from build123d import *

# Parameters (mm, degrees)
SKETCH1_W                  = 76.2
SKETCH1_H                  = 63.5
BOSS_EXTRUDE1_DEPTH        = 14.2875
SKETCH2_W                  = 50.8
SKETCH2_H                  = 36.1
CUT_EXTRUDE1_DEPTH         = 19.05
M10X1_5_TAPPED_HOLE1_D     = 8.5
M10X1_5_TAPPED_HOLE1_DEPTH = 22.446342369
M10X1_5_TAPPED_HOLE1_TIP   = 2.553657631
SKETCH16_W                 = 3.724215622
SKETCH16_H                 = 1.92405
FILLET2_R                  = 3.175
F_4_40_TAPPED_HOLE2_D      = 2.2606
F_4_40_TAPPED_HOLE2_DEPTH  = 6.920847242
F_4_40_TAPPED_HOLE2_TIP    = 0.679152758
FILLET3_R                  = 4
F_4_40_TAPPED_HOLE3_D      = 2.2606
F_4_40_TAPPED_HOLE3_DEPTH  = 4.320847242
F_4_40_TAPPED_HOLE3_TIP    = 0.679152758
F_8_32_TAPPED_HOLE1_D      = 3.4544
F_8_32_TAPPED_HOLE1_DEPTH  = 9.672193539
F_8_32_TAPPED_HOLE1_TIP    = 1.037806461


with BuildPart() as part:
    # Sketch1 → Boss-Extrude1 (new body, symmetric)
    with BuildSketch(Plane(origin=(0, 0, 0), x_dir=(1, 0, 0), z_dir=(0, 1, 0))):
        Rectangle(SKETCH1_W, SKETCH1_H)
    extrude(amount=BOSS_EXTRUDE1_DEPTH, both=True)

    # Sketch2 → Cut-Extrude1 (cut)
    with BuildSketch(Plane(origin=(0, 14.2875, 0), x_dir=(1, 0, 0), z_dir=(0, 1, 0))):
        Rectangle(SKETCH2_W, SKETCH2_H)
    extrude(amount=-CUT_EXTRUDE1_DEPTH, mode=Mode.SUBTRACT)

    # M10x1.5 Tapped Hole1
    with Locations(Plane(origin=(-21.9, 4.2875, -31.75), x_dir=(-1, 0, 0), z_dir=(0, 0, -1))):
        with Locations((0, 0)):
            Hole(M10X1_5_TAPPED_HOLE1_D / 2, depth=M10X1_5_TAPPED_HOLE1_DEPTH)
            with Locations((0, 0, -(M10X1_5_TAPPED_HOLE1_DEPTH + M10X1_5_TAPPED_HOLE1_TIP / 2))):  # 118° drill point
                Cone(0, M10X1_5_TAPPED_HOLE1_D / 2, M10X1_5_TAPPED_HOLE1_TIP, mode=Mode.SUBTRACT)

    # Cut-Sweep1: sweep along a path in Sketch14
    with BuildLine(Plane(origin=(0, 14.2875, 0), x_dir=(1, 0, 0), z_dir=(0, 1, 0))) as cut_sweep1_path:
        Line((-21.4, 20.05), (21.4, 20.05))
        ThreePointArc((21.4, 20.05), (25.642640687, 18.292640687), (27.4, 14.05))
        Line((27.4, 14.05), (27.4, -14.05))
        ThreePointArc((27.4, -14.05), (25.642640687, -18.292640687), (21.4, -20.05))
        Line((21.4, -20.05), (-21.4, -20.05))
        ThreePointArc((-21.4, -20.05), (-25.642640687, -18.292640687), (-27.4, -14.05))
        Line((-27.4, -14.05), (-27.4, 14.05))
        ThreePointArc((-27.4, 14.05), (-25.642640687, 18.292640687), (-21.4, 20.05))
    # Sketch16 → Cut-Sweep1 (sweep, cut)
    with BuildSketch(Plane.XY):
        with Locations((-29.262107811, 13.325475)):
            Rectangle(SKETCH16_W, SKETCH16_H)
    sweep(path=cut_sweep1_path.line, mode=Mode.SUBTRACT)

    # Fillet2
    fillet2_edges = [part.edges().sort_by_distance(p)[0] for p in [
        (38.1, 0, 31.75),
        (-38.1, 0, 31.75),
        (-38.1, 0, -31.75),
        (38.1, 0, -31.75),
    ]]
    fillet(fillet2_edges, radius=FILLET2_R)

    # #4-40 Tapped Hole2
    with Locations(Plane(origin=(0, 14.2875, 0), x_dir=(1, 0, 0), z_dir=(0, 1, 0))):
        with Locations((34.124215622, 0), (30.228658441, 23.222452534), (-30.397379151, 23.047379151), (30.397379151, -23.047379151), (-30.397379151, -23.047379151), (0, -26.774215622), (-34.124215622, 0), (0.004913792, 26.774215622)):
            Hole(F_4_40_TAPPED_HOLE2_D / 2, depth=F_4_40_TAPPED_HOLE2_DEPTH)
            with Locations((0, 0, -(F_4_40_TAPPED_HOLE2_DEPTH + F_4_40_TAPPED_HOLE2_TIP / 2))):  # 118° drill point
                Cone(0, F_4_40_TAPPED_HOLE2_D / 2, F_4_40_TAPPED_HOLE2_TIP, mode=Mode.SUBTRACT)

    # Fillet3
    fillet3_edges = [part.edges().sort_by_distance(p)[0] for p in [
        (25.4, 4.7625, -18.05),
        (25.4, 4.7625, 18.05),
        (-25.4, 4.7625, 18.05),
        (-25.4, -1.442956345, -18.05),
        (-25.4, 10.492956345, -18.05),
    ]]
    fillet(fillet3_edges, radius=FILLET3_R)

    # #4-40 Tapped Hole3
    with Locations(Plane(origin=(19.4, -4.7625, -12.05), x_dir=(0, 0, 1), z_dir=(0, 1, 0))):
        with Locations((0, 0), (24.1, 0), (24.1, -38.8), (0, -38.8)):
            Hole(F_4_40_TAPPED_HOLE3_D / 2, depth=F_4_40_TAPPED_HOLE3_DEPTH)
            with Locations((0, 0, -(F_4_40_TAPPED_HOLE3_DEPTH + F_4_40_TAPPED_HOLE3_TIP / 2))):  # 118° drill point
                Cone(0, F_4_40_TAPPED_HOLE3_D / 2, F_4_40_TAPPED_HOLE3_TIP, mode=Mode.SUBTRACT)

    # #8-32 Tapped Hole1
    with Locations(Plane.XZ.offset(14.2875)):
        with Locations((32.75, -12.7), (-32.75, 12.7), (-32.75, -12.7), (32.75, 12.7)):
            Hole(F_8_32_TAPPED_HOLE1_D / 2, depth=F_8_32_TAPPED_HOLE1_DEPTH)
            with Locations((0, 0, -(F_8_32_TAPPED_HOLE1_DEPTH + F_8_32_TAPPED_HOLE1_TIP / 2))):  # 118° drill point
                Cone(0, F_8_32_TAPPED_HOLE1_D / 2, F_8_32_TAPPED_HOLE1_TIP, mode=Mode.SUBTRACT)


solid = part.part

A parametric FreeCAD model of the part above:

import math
import FreeCAD as App
import Part
import Sketcher
from FreeCAD import Vector
Q = App.Units.Quantity


def edges_at(feature, points):
    """Names of the edges that pass closest to the given points."""
    edges = feature.Shape.Edges
    near = lambda p: min(range(len(edges)), key=lambda i: edges[i].distToShape(Part.Vertex(*p))[0])
    return sorted({f"Edge{near(p) + 1}" for p in points})

doc = App.newDocument("Part")
params = doc.addObject("Spreadsheet::Sheet", "Params")
for row, (alias, value) in enumerate([
    ("sketch1_width", "3 in"),
    ("sketch1_height", "2.5 in"),
    ("pad1_length", "1.125 in"),
    ("sketch2_width", "2 in"),
    ("pocket1_length", "0.75 in"),
    ("hole_diameter", "8.5 mm"),
    ("hole_depth", "22.446342 mm"),
    ("fillet_radius", "0.125 in"),
    ("sketch6_diameter", "0.089 in"),
    ("hole2_diameter", "0.089 in"),
    ("hole2_depth", "6.920847 mm"),
    ("fillet2_radius", "4 mm"),
    ("sketch7_diameter", "0.089 in"),
    ("hole3_diameter", "0.089 in"),
    ("hole3_depth", "4.320847 mm"),
    ("sketch8_diameter", "0.136 in"),
    ("hole4_diameter", "0.136 in"),
    ("hole4_depth", "9.672194 mm"),
], start=1):
    params.set(f"A{row}", alias)
    params.set(f"B{row}", "=" + value)
    params.setAlias(f"B{row}", alias)

body = doc.addObject("PartDesign::Body", "Body")

# Sketch on XZ plane
sketch1 = doc.addObject("Sketcher::SketchObject", "Sketch")
body.addObject(sketch1)
sketch1.AttachmentSupport = (doc.XZ_Plane, [""])
sketch1.MapMode = "FlatFace"
sketch1.addGeometry([
    Part.LineSegment(Vector(-38, -32, 0), Vector(-38, 32, 0)),
    Part.LineSegment(Vector(-38, 32, 0), Vector(38, 32, 0)),
    Part.LineSegment(Vector(38, 32, 0), Vector(38, -32, 0)),
    Part.LineSegment(Vector(38, -32, 0), Vector(-38, -32, 0)),
], False)
sketch1.addConstraint([
    Sketcher.Constraint("Coincident", 0, 2, 1, 1),
    Sketcher.Constraint("Coincident", 1, 2, 2, 1),
    Sketcher.Constraint("Coincident", 2, 2, 3, 1),
    Sketcher.Constraint("Coincident", 3, 2, 0, 1),
    Sketcher.Constraint("Vertical", 0),
    Sketcher.Constraint("Horizontal", 1),
    Sketcher.Constraint("Vertical", 2),
    Sketcher.Constraint("Horizontal", 3),
    Sketcher.Constraint("Symmetric", 0, 2, 2, 2, -1, 1),
    Sketcher.Constraint("DistanceX", 1, 1, 1, 2, Q("3 in")),
    Sketcher.Constraint("DistanceY", 0, 1, 0, 2, Q("2.5 in")),
])
sketch1.setExpression("Constraints[9]", "Params.sketch1_width")
sketch1.setExpression("Constraints[10]", "Params.sketch1_height")
pad1 = doc.addObject("PartDesign::Pad", "Pad")
body.addObject(pad1)
pad1.Profile = sketch1
pad1.setExpression("Length", "Params.pad1_length")
pad1.Midplane = True

# Sketch on XZ plane
sketch2 = doc.addObject("Sketcher::SketchObject", "Sketch001")
body.addObject(sketch2)
sketch2.AttachmentSupport = (doc.XZ_Plane, [""])
sketch2.MapMode = "FlatFace"
sketch2.AttachmentOffset = App.Placement(Vector(0, 0, -0.5625 * 25.4), App.Rotation())
sketch2.addGeometry([
    Part.LineSegment(Vector(-25, -18, 0), Vector(-25, 18, 0)),
    Part.LineSegment(Vector(-25, 18, 0), Vector(25, 18, 0)),
    Part.LineSegment(Vector(25, 18, 0), Vector(25, -18, 0)),
    Part.LineSegment(Vector(25, -18, 0), Vector(-25, -18, 0)),
], False)
sketch2.addConstraint([
    Sketcher.Constraint("Coincident", 0, 2, 1, 1),
    Sketcher.Constraint("Coincident", 1, 2, 2, 1),
    Sketcher.Constraint("Coincident", 2, 2, 3, 1),
    Sketcher.Constraint("Coincident", 3, 2, 0, 1),
    Sketcher.Constraint("Vertical", 0),
    Sketcher.Constraint("Horizontal", 1),
    Sketcher.Constraint("Vertical", 2),
    Sketcher.Constraint("Horizontal", 3),
    Sketcher.Constraint("Symmetric", 0, 2, 2, 2, -1, 1),
    Sketcher.Constraint("DistanceX", 1, 1, 1, 2, Q("2 in")),
    Sketcher.Constraint("DistanceY", 0, 1, 0, 2, Q("36.1 mm")),
])
sketch2.setExpression("Constraints[9]", "Params.sketch2_width")
pocket1 = doc.addObject("PartDesign::Pocket", "Pocket")
body.addObject(pocket1)
pocket1.Profile = sketch2
pocket1.setExpression("Length", "Params.pocket1_length")
pocket1.Reversed = True

# Sketch on XY plane
sketch3 = doc.addObject("Sketcher::SketchObject", "Sketch002")
body.addObject(sketch3)
sketch3.AttachmentSupport = (doc.XY_Plane, [""])
sketch3.MapMode = "FlatFace"
sketch3.AttachmentOffset = App.Placement(Vector(0, 0, -1.25 * 25.4), App.Rotation())
sketch3.addGeometry(Part.Circle(Vector(-21.9, 4.3, 0), Vector(0, 0, 1), 4.2), False)
sketch3.addConstraint([
    Sketcher.Constraint("Diameter", 0, Q("8.5 mm")),
    Sketcher.Constraint("DistanceX", 0, 3, -1, 1, Q("21.9 mm")),
    Sketcher.Constraint("DistanceY", -1, 1, 0, 3, Q("4.2875 mm")),
])
doc.recompute()
hole = doc.addObject("PartDesign::Hole", "Hole")
body.addObject(hole)
hole.Profile = sketch3
hole.ThreadType = "None"
hole.setExpression("Diameter", "Params.hole_diameter")
hole.DepthType = "Dimension"
hole.setExpression("Depth", "Params.hole_depth")
hole.DrillPoint = "Angled"
hole.DrillPointAngle = 118
hole.Reversed = True

# Sketch on XY plane
sketch4 = doc.addObject("Sketcher::SketchObject", "Sketch003")
body.addObject(sketch4)
sketch4.AttachmentSupport = (doc.XY_Plane, [""])
sketch4.MapMode = "FlatFace"
sketch4.addGeometry([
    Part.LineSegment(Vector(-31.1, 14.3, 0), Vector(-31.1, 12.4, 0)),
    Part.LineSegment(Vector(-31.1, 12.4, 0), Vector(-27.4, 12.4, 0)),
    Part.LineSegment(Vector(-27.4, 12.4, 0), Vector(-27.4, 14.3, 0)),
    Part.LineSegment(Vector(-27.4, 14.3, 0), Vector(-31.1, 14.3, 0)),
], False)
sketch4.addConstraint([
    Sketcher.Constraint("Coincident", 0, 2, 1, 1),
    Sketcher.Constraint("Coincident", 1, 2, 2, 1),
    Sketcher.Constraint("Coincident", 2, 2, 3, 1),
    Sketcher.Constraint("Coincident", 3, 2, 0, 1),
    Sketcher.Constraint("Vertical", 0),
    Sketcher.Constraint("Horizontal", 1),
    Sketcher.Constraint("Vertical", 2),
    Sketcher.Constraint("Horizontal", 3),
    Sketcher.Constraint("DistanceY", -1, 1, 2, 2, Q("0.5625 in")),
    Sketcher.Constraint("DistanceY", 0, 2, 0, 1, Q("1.92405 mm")),
    Sketcher.Constraint("DistanceX", 1, 2, -1, 1, Q("27.4 mm")),
    Sketcher.Constraint("DistanceX", 1, 1, 1, 2, Q("3.724216 mm")),
])

# Sketch on XZ plane
sketch5 = doc.addObject("Sketcher::SketchObject", "Sketch004")
body.addObject(sketch5)
sketch5.AttachmentSupport = (doc.XZ_Plane, [""])
sketch5.MapMode = "FlatFace"
sketch5.AttachmentOffset = App.Placement(Vector(0, 0, -0.5625 * 25.4), App.Rotation())
sketch5.addGeometry([
    Part.LineSegment(Vector(-21, -20, 0), Vector(21, -20, 0)),  # 0
    Part.ArcOfCircle(Part.Circle(Vector(21, -14, 0), Vector(0, 0, 1), 6), math.radians(-90), math.radians(0)),  # 1
    Part.LineSegment(Vector(27, -14, 0), Vector(27, 14, 0)),  # 2
    Part.ArcOfCircle(Part.Circle(Vector(21, 14, 0), Vector(0, 0, 1), 6), math.radians(0), math.radians(90)),  # 3
    Part.LineSegment(Vector(21, 20, 0), Vector(-21, 20, 0)),  # 4
    Part.ArcOfCircle(Part.Circle(Vector(-21, 14, 0), Vector(0, 0, 1), 6), math.radians(90), math.radians(180)),  # 5
    Part.LineSegment(Vector(-27, 14, 0), Vector(-27, -14, 0)),  # 6
    Part.ArcOfCircle(Part.Circle(Vector(-21, -14, 0), Vector(0, 0, 1), 6), math.radians(180), math.radians(270)),  # 7
], False)
sketch5.addConstraint([
    Sketcher.Constraint("Tangent", 0, 2, 1, 1),
    Sketcher.Constraint("Tangent", 1, 2, 2, 1),
    Sketcher.Constraint("Tangent", 2, 2, 3, 1),
    Sketcher.Constraint("Tangent", 3, 2, 4, 1),
    Sketcher.Constraint("Tangent", 4, 2, 5, 1),
    Sketcher.Constraint("Tangent", 5, 2, 6, 1),
    Sketcher.Constraint("Tangent", 6, 2, 7, 1),
    Sketcher.Constraint("Tangent", 7, 2, 0, 1),
    Sketcher.Constraint("Horizontal", 0),
    Sketcher.Constraint("Vertical", 2),
    Sketcher.Constraint("Horizontal", 4),
    Sketcher.Constraint("Vertical", 6),
    Sketcher.Constraint("Equal", 1, 3),
    Sketcher.Constraint("Equal", 3, 5),
    Sketcher.Constraint("Equal", 5, 7),
    Sketcher.Constraint("Symmetric", 1, 3, 5, 3, -1, 1),
    Sketcher.Constraint("Radius", 1, Q("6 mm")),
    Sketcher.Constraint("DistanceX", 0, 1, 0, 2, Q("42.8 mm")),
    Sketcher.Constraint("DistanceY", 2, 1, 2, 2, Q("28.1 mm")),
])
doc.recompute()

subtractivepipe = doc.addObject("PartDesign::SubtractivePipe", "SubtractivePipe")
body.addObject(subtractivepipe)
subtractivepipe.Profile = sketch4
subtractivepipe.Spine = (sketch5, ["Edge1", "Edge2", "Edge3", "Edge4", "Edge5", "Edge6", "Edge7", "Edge8"])
doc.recompute()

fillet = doc.addObject("PartDesign::Fillet", "Fillet")
body.addObject(fillet)
fillet.Base = (subtractivepipe, edges_at(subtractivepipe, [
    (38.1, 0, 31.75),
    (-38.1, 0, 31.75),
    (-38.1, 0, -31.75),
    (38.1, 0, -31.75),
]))
fillet.setExpression("Radius", "Params.fillet_radius")

# Sketch on XZ plane
sketch6 = doc.addObject("Sketcher::SketchObject", "Sketch005")
body.addObject(sketch6)
sketch6.AttachmentSupport = (doc.XZ_Plane, [""])
sketch6.MapMode = "FlatFace"
sketch6.AttachmentOffset = App.Placement(Vector(0, 0, -0.5625 * 25.4), App.Rotation())
sketch6.addGeometry([
    Part.Circle(Vector(34.1, 0, 0), Vector(0, 0, 1), 1.1),  # 0
    Part.Circle(Vector(30.2, -23.2, 0), Vector(0, 0, 1), 1.1),  # 1
    Part.Circle(Vector(-30.4, -23, 0), Vector(0, 0, 1), 1.1),  # 2
    Part.Circle(Vector(30.4, 23, 0), Vector(0, 0, 1), 1.1),  # 3
    Part.Circle(Vector(-30.4, 23, 0), Vector(0, 0, 1), 1.1),  # 4
    Part.Circle(Vector(0, 26.8, 0), Vector(0, 0, 1), 1.1),  # 5
    Part.Circle(Vector(-34.1, 0, 0), Vector(0, 0, 1), 1.1),  # 6
    Part.Circle(Vector(0, -26.8, 0), Vector(0, 0, 1), 1.1),  # 7
], False)
sketch6.addConstraint([
    Sketcher.Constraint("Equal", 0, 1),
    Sketcher.Constraint("Equal", 1, 2),
    Sketcher.Constraint("Equal", 2, 3),
    Sketcher.Constraint("Equal", 3, 4),
    Sketcher.Constraint("Equal", 4, 5),
    Sketcher.Constraint("Equal", 5, 6),
    Sketcher.Constraint("Equal", 6, 7),
    Sketcher.Constraint("Symmetric", 2, 3, 3, 3, -1, 1),
    Sketcher.Constraint("Symmetric", 0, 3, 6, 3, -1, 1),
    Sketcher.Constraint("Symmetric", 3, 3, 4, 3, -2),
    Sketcher.Constraint("PointOnObject", 0, 3, -1),
    Sketcher.Constraint("PointOnObject", 5, 3, -2),
    Sketcher.Constraint("Diameter", 0, Q("0.089 in")),
    Sketcher.Constraint("DistanceX", 7, 3, 0, 3, Q("34.119302 mm")),
    Sketcher.Constraint("DistanceX", -1, 1, 1, 3, Q("30.228658 mm")),
    Sketcher.Constraint("DistanceX", 2, 3, -1, 1, Q("30.397379 mm")),
    Sketcher.Constraint("DistanceY", 2, 3, -1, 1, Q("23.047379 mm")),
    Sketcher.Constraint("DistanceY", 1, 3, 3, 3, Q("46.269832 mm")),
    Sketcher.Constraint("DistanceY", 1, 3, 5, 3, Q("49.996668 mm")),
    Sketcher.Constraint("DistanceX", 6, 3, 0, 3, Q("68.248431 mm")),
    Sketcher.Constraint("DistanceY", 7, 3, 5, 3, Q("53.548431 mm")),
])
sketch6.setExpression("Constraints[12]", "Params.sketch6_diameter")
doc.recompute()
hole2 = doc.addObject("PartDesign::Hole", "Hole001")
body.addObject(hole2)
hole2.Profile = sketch6
hole2.ThreadType = "None"
hole2.setExpression("Diameter", "Params.hole2_diameter")
hole2.DepthType = "Dimension"
hole2.setExpression("Depth", "Params.hole2_depth")
hole2.DrillPoint = "Angled"
hole2.DrillPointAngle = 118
hole2.Reversed = True
doc.recompute()

fillet2 = doc.addObject("PartDesign::Fillet", "Fillet001")
body.addObject(fillet2)
fillet2.Base = (hole2, edges_at(hole2, [
    (25.4, 4.763, -18.05),
    (25.4, 4.763, 18.05),
    (-25.4, 4.763, 18.05),
    (-25.4, -1.443, -18.05),
    (-25.4, 10.493, -18.05),
]))
fillet2.setExpression("Radius", "Params.fillet2_radius")

# Sketch on XZ plane
sketch7 = doc.addObject("Sketcher::SketchObject", "Sketch006")
body.addObject(sketch7)
sketch7.AttachmentSupport = (doc.XZ_Plane, [""])
sketch7.MapMode = "FlatFace"
sketch7.AttachmentOffset = App.Placement(Vector(0, 0, 0.1875 * 25.4), App.Rotation())
sketch7.addGeometry([
    Part.Circle(Vector(19.4, -12.1, 0), Vector(0, 0, 1), 1.1),
    Part.Circle(Vector(19.4, 12.1, 0), Vector(0, 0, 1), 1.1),
    Part.Circle(Vector(-19.4, 12.1, 0), Vector(0, 0, 1), 1.1),
    Part.Circle(Vector(-19.4, -12.1, 0), Vector(0, 0, 1), 1.1),
], False)
sketch7.addConstraint([
    Sketcher.Constraint("Equal", 0, 1),
    Sketcher.Constraint("Equal", 1, 2),
    Sketcher.Constraint("Equal", 2, 3),
    Sketcher.Constraint("Symmetric", 0, 3, 2, 3, -1, 1),
    Sketcher.Constraint("Symmetric", 1, 3, 3, 3, -1, 1),
    Sketcher.Constraint("Symmetric", 1, 3, 2, 3, -2),
    Sketcher.Constraint("Diameter", 0, Q("0.089 in")),
    Sketcher.Constraint("DistanceX", -1, 1, 0, 3, Q("19.4 mm")),
    Sketcher.Constraint("DistanceY", 0, 3, -1, 1, Q("12.05 mm")),
])
sketch7.setExpression("Constraints[6]", "Params.sketch7_diameter")
doc.recompute()
hole3 = doc.addObject("PartDesign::Hole", "Hole002")
body.addObject(hole3)
hole3.Profile = sketch7
hole3.ThreadType = "None"
hole3.setExpression("Diameter", "Params.hole3_diameter")
hole3.DepthType = "Dimension"
hole3.setExpression("Depth", "Params.hole3_depth")
hole3.DrillPoint = "Angled"
hole3.DrillPointAngle = 118
hole3.Reversed = True

# Sketch on XZ plane
sketch8 = doc.addObject("Sketcher::SketchObject", "Sketch007")
body.addObject(sketch8)
sketch8.AttachmentSupport = (doc.XZ_Plane, [""])
sketch8.MapMode = "FlatFace"
sketch8.AttachmentOffset = App.Placement(Vector(0, 0, 0.5625 * 25.4), App.Rotation())
sketch8.addGeometry([
    Part.Circle(Vector(32.8, -12.7, 0), Vector(0, 0, 1), 1.7),
    Part.Circle(Vector(-32.8, 12.7, 0), Vector(0, 0, 1), 1.7),
    Part.Circle(Vector(-32.8, -12.7, 0), Vector(0, 0, 1), 1.7),
    Part.Circle(Vector(32.8, 12.7, 0), Vector(0, 0, 1), 1.7),
], False)
sketch8.addConstraint([
    Sketcher.Constraint("Equal", 0, 1),
    Sketcher.Constraint("Equal", 1, 2),
    Sketcher.Constraint("Equal", 2, 3),
    Sketcher.Constraint("Symmetric", 0, 3, 1, 3, -1, 1),
    Sketcher.Constraint("Symmetric", 2, 3, 3, 3, -1, 1),
    Sketcher.Constraint("Symmetric", 0, 3, 2, 3, -2),
    Sketcher.Constraint("Diameter", 0, Q("0.136 in")),
    Sketcher.Constraint("DistanceY", 0, 3, 1, 3, Q("1 in")),
    Sketcher.Constraint("DistanceX", -1, 1, 0, 3, Q("32.75 mm")),
])
sketch8.setExpression("Constraints[6]", "Params.sketch8_diameter")
doc.recompute()
hole4 = doc.addObject("PartDesign::Hole", "Hole003")
body.addObject(hole4)
hole4.Profile = sketch8
hole4.ThreadType = "None"
hole4.setExpression("Diameter", "Params.hole4_diameter")
hole4.DepthType = "Dimension"
hole4.setExpression("Depth", "Params.hole4_depth")
hole4.DrillPoint = "Angled"
hole4.DrillPointAngle = 118

doc.recompute()
